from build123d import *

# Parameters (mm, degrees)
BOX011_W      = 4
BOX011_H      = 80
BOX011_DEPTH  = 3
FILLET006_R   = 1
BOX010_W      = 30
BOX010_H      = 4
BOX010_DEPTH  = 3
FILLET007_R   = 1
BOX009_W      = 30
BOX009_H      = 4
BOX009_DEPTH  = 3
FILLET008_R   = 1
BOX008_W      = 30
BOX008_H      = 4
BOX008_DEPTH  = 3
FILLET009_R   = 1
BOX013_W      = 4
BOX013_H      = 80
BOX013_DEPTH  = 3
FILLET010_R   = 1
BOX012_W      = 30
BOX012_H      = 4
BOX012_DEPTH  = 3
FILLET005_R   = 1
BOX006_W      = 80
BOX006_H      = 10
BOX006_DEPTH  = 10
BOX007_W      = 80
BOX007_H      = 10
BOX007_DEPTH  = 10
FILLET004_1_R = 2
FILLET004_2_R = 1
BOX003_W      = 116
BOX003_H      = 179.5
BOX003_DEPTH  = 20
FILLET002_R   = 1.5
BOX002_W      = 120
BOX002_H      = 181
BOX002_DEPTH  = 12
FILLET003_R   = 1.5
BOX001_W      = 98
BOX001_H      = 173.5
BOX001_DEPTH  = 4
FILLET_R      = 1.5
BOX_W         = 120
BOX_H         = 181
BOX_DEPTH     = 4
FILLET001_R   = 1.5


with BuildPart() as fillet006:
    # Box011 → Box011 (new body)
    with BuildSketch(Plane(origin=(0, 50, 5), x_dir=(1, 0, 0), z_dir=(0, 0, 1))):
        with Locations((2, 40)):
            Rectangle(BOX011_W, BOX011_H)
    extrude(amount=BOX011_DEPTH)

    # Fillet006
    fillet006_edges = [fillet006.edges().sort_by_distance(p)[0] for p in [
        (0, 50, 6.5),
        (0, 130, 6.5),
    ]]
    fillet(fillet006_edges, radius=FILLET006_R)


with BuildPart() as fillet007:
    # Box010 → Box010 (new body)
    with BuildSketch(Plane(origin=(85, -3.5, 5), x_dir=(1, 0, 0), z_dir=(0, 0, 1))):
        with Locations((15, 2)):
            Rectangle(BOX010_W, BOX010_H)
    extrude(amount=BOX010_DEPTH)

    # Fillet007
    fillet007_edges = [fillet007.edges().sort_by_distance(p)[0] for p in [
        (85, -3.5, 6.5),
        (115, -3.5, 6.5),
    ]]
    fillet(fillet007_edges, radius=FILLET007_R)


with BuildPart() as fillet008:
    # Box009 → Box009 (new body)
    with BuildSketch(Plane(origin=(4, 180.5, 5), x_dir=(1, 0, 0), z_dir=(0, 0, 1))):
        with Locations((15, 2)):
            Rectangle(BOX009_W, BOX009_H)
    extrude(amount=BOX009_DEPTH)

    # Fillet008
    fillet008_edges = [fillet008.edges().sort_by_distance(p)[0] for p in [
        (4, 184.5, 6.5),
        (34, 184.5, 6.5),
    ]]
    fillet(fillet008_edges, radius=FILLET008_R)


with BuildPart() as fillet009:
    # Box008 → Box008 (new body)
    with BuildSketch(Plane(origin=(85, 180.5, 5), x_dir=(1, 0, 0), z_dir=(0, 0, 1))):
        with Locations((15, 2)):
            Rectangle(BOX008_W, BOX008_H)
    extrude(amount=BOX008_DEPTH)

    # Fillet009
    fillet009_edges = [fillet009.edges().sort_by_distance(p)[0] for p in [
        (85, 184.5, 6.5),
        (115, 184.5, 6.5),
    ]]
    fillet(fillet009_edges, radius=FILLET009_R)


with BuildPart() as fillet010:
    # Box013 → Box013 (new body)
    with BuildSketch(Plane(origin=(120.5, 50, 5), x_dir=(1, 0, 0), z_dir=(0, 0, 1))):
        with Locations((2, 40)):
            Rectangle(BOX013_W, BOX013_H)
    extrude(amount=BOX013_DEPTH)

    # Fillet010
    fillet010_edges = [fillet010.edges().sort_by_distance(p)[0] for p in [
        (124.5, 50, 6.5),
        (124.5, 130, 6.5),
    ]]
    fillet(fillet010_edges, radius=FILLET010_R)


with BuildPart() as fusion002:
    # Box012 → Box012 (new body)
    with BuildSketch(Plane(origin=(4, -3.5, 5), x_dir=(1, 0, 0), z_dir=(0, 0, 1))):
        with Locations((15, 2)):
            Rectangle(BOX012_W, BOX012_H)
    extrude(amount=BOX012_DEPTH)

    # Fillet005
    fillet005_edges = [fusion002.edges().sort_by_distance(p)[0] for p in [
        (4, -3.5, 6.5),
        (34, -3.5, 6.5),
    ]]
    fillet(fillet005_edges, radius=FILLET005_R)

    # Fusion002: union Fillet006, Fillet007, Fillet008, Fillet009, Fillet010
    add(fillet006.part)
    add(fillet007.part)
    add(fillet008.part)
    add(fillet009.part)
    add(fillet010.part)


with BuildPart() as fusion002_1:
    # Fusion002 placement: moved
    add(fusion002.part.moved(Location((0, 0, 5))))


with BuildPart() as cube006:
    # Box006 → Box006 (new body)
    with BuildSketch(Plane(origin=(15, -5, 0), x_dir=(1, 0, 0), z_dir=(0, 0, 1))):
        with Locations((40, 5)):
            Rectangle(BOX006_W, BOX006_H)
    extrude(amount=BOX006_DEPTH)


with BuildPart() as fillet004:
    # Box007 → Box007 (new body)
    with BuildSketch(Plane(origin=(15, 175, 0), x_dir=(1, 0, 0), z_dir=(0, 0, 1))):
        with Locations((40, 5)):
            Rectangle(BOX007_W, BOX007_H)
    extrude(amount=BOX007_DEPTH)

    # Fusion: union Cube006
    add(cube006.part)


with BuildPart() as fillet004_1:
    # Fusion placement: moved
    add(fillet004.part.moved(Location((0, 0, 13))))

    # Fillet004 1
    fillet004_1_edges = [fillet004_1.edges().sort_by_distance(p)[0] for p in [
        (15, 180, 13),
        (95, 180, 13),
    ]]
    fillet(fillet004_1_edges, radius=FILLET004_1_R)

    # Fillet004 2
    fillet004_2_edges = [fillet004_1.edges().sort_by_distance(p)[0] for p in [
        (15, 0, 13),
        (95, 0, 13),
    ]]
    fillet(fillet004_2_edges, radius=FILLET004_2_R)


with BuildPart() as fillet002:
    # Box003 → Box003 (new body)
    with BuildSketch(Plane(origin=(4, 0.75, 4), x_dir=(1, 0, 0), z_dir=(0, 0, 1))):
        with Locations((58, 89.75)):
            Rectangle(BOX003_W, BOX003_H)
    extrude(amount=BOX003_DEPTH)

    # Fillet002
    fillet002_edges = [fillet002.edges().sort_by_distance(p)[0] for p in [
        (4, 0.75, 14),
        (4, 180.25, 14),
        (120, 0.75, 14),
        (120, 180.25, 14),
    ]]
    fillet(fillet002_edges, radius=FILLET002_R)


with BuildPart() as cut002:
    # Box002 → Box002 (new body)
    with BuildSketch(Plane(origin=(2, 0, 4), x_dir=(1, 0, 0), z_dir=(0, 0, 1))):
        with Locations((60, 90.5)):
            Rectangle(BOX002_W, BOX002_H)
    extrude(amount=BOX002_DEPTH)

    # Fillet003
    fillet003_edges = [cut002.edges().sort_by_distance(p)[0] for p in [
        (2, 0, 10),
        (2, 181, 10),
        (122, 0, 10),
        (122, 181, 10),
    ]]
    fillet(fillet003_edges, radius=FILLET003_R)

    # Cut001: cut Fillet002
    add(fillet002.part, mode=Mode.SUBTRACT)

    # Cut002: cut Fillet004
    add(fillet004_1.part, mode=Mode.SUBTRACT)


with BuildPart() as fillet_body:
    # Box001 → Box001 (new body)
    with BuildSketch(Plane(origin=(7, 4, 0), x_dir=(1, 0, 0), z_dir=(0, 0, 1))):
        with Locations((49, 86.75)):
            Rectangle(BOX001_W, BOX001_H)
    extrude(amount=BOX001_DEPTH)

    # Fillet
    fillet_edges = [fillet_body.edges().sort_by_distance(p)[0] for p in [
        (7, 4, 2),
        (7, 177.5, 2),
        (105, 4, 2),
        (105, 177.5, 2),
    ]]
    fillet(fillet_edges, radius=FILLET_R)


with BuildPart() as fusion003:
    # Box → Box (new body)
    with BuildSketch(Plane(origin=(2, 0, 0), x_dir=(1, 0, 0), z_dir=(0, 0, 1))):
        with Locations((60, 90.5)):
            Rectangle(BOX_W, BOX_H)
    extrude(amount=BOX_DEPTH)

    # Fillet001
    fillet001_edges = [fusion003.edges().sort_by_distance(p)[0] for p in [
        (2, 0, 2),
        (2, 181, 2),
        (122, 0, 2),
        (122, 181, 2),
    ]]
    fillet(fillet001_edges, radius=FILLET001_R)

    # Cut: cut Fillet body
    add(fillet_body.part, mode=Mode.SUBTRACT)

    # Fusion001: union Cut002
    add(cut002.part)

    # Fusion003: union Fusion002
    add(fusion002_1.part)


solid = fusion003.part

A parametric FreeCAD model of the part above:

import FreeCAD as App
import Part
import Sketcher

V = App.Vector


def edges_at(feature, points):
    """Names of the edges that pass closest to the given points."""
    edges = feature.Shape.Edges
    near = lambda p: min(range(len(edges)), key=lambda i: edges[i].distToShape(Part.Vertex(*p))[0])
    return sorted({f"Edge{near(p) + 1}" for p in points})


def add_polygon(sketch, points):
    """Adds a closed chain of lines whose ends are joined by coincident constraints."""
    first, n = sketch.GeometryCount, len(points)
    for a, b in zip(points, points[1:] + points[:1]):
        sketch.addGeometry(Part.LineSegment(App.Vector(*a, 0), App.Vector(*b, 0)), False)
    for i in range(n):
        sketch.addConstraint(Sketcher.Constraint("Coincident", first + i, 2, first + (i + 1) % n, 1))

doc = App.newDocument("Part")
body = doc.addObject("PartDesign::Body", "Body")

# Sketch on XY plane
sketch1 = body.newObject("Sketcher::SketchObject", "Sketch")
sketch1.AttachmentSupport = (doc.getObject("XY_Plane"), [""])
sketch1.MapMode = "FlatFace"
sketch1.AttachmentOffset = App.Placement(V(0, 0, 5), App.Rotation())
add_polygon(sketch1, [(0, 130), (0, 50), (4, 50), (4, 130)])  # lines 0-3
sketch1.addConstraint(Sketcher.Constraint("Vertical", 0))
sketch1.addConstraint(Sketcher.Constraint("Horizontal", 1))
sketch1.addConstraint(Sketcher.Constraint("Vertical", 2))
sketch1.addConstraint(Sketcher.Constraint("Horizontal", 3))
sketch1.addConstraint(Sketcher.Constraint("PointOnObject", 0, 2, -2))
sketch1.addConstraint(Sketcher.Constraint("DistanceX", 1, 1, 1, 2, 4.0))
sketch1.addConstraint(Sketcher.Constraint("DistanceY", 0, 2, 0, 1, 80.0))
sketch1.addConstraint(Sketcher.Constraint("DistanceY", -1, 1, 0, 2, 50.0))
pad1 = body.newObject("PartDesign::Pad", "Pad")
pad1.Profile = sketch1
pad1.Length = 3
doc.recompute()

fillet = body.newObject("PartDesign::Fillet", "Fillet")
fillet.Base = (pad1, edges_at(pad1, [(0, 50, 6.5), (0, 130, 6.5)]))
fillet.Radius = 1
body2 = doc.addObject("PartDesign::Body", "Body001")

# Sketch on XY plane
sketch2 = body2.newObject("Sketcher::SketchObject", "Sketch001")
sketch2.AttachmentSupport = (doc.getObject("XY_Plane001"), [""])
sketch2.MapMode = "FlatFace"
sketch2.AttachmentOffset = App.Placement(V(0, 0, 5), App.Rotation())
add_polygon(sketch2, [(85, 0.5), (85, -3.5), (115, -3.5), (115, 0.5)])  # lines 0-3
sketch2.addConstraint(Sketcher.Constraint("Vertical", 0))
sketch2.addConstraint(Sketcher.Constraint("Horizontal", 1))
sketch2.addConstraint(Sketcher.Constraint("Vertical", 2))
sketch2.addConstraint(Sketcher.Constraint("Horizontal", 3))
sketch2.addConstraint(Sketcher.Constraint("DistanceX", 1, 1, 1, 2, 30.0))
sketch2.addConstraint(Sketcher.Constraint("DistanceY", 0, 2, 0, 1, 4.0))
sketch2.addConstraint(Sketcher.Constraint("DistanceX", -1, 1, 0, 2, 85.0))
sketch2.addConstraint(Sketcher.Constraint("DistanceY", 0, 2, -1, 1, 3.5))
pad2 = body2.newObject("PartDesign::Pad", "Pad001")
pad2.Profile = sketch2
pad2.Length = 3
doc.recompute()

fillet2 = body2.newObject("PartDesign::Fillet", "Fillet001")
fillet2.Base = (pad2, edges_at(pad2, [(85, -3.5, 6.5), (115, -3.5, 6.5)]))
fillet2.Radius = 1
body3 = doc.addObject("PartDesign::Body", "Body002")

# Sketch on XY plane
sketch3 = body3.newObject("Sketcher::SketchObject", "Sketch002")
sketch3.AttachmentSupport = (doc.getObject("XY_Plane002"), [""])
sketch3.MapMode = "FlatFace"
sketch3.AttachmentOffset = App.Placement(V(0, 0, 5), App.Rotation())
add_polygon(sketch3, [(4, 184.5), (4, 180.5), (34, 180.5), (34, 184.5)])  # lines 0-3
sketch3.addConstraint(Sketcher.Constraint("Vertical", 0))
sketch3.addConstraint(Sketcher.Constraint("Horizontal", 1))
sketch3.addConstraint(Sketcher.Constraint("Vertical", 2))
sketch3.addConstraint(Sketcher.Constraint("Horizontal", 3))
sketch3.addConstraint(Sketcher.Constraint("DistanceX", 1, 1, 1, 2, 30.0))
sketch3.addConstraint(Sketcher.Constraint("DistanceY", 0, 2, 0, 1, 4.0))
sketch3.addConstraint(Sketcher.Constraint("DistanceX", -1, 1, 0, 2, 4.0))
sketch3.addConstraint(Sketcher.Constraint("DistanceY", -1, 1, 0, 2, 180.5))
pad3 = body3.newObject("PartDesign::Pad", "Pad002")
pad3.Profile = sketch3
pad3.Length = 3
doc.recompute()

fillet3 = body3.newObject("PartDesign::Fillet", "Fillet002")
fillet3.Base = (pad3, edges_at(pad3, [(4, 184.5, 6.5), (34, 184.5, 6.5)]))
fillet3.Radius = 1
body4 = doc.addObject("PartDesign::Body", "Body003")

# Sketch on XY plane
sketch4 = body4.newObject("Sketcher::SketchObject", "Sketch003")
sketch4.AttachmentSupport = (doc.getObject("XY_Plane003"), [""])
sketch4.MapMode = "FlatFace"
sketch4.AttachmentOffset = App.Placement(V(0, 0, 5), App.Rotation())
add_polygon(sketch4, [(85, 184.5), (85, 180.5), (115, 180.5), (115, 184.5)])  # lines 0-3
sketch4.addConstraint(Sketcher.Constraint("Vertical", 0))
sketch4.addConstraint(Sketcher.Constraint("Horizontal", 1))
sketch4.addConstraint(Sketcher.Constraint("Vertical", 2))
sketch4.addConstraint(Sketcher.Constraint("Horizontal", 3))
sketch4.addConstraint(Sketcher.Constraint("DistanceX", 1, 1, 1, 2, 30.0))
sketch4.addConstraint(Sketcher.Constraint("DistanceY", 0, 2, 0, 1, 4.0))
sketch4.addConstraint(Sketcher.Constraint("DistanceX", -1, 1, 0, 2, 85.0))
sketch4.addConstraint(Sketcher.Constraint("DistanceY", -1, 1, 0, 2, 180.5))
pad4 = body4.newObject("PartDesign::Pad", "Pad003")
pad4.Profile = sketch4
pad4.Length = 3
doc.recompute()

fillet4 = body4.newObject("PartDesign::Fillet", "Fillet003")
fillet4.Base = (pad4, edges_at(pad4, [(85, 184.5, 6.5), (115, 184.5, 6.5)]))
fillet4.Radius = 1
body5 = doc.addObject("PartDesign::Body", "Body004")

# Sketch on XY plane
sketch5 = body5.newObject("Sketcher::SketchObject", "Sketch004")
sketch5.AttachmentSupport = (doc.getObject("XY_Plane004"), [""])
sketch5.MapMode = "FlatFace"
sketch5.AttachmentOffset = App.Placement(V(0, 0, 5), App.Rotation())
add_polygon(sketch5, [(120.5, 130), (120.5, 50), (124.5, 50), (124.5, 130)])  # lines 0-3
sketch5.addConstraint(Sketcher.Constraint("Vertical", 0))
sketch5.addConstraint(Sketcher.Constraint("Horizontal", 1))
sketch5.addConstraint(Sketcher.Constraint("Vertical", 2))
sketch5.addConstraint(Sketcher.Constraint("Horizontal", 3))
sketch5.addConstraint(Sketcher.Constraint("DistanceX", 1, 1, 1, 2, 4.0))
sketch5.addConstraint(Sketcher.Constraint("DistanceY", 0, 2, 0, 1, 80.0))
sketch5.addConstraint(Sketcher.Constraint("DistanceY", -1, 1, 0, 2, 50.0))
sketch5.addConstraint(Sketcher.Constraint("DistanceX", -1, 1, 0, 2, 120.5))
pad5 = body5.newObject("PartDesign::Pad", "Pad004")
pad5.Profile = sketch5
pad5.Length = 3
doc.recompute()

fillet5 = body5.newObject("PartDesign::Fillet", "Fillet004")
fillet5.Base = (pad5, edges_at(pad5, [(124.5, 50, 6.5), (124.5, 130, 6.5)]))
fillet5.Radius = 1
body6 = doc.addObject("PartDesign::Body", "Body005")
body6.AllowCompound = True

# Sketch on XY plane
sketch6 = body6.newObject("Sketcher::SketchObject", "Sketch005")
sketch6.AttachmentSupport = (doc.getObject("XY_Plane005"), [""])
sketch6.MapMode = "FlatFace"
sketch6.AttachmentOffset = App.Placement(V(0, 0, 5), App.Rotation())
add_polygon(sketch6, [(4, 0.5), (4, -3.5), (34, -3.5), (34, 0.5)])  # lines 0-3
sketch6.addConstraint(Sketcher.Constraint("Vertical", 0))
sketch6.addConstraint(Sketcher.Constraint("Horizontal", 1))
sketch6.addConstraint(Sketcher.Constraint("Vertical", 2))
sketch6.addConstraint(Sketcher.Constraint("Horizontal", 3))
sketch6.addConstraint(Sketcher.Constraint("DistanceX", 1, 1, 1, 2, 30.0))
sketch6.addConstraint(Sketcher.Constraint("DistanceY", 0, 2, 0, 1, 4.0))
sketch6.addConstraint(Sketcher.Constraint("DistanceX", -1, 1, 0, 2, 4.0))
sketch6.addConstraint(Sketcher.Constraint("DistanceY", 0, 2, -1, 1, 3.5))
pad6 = body6.newObject("PartDesign::Pad", "Pad005")
pad6.Profile = sketch6
pad6.Length = 3
doc.recompute()

fillet6 = body6.newObject("PartDesign::Fillet", "Fillet005")
fillet6.Base = (pad6, edges_at(pad6, [(4, -3.5, 6.5), (34, -3.5, 6.5)]))
fillet6.Radius = 1
doc.recompute()

boolean = body6.newObject("PartDesign::Boolean", "Boolean")
boolean.Type = "Fuse"
boolean.addObjects([body])
doc.recompute()

boolean2 = body6.newObject("PartDesign::Boolean", "Boolean001")
boolean2.Type = "Fuse"
boolean2.addObjects([body2])
doc.recompute()

boolean3 = body6.newObject("PartDesign::Boolean", "Boolean002")
boolean3.Type = "Fuse"
boolean3.addObjects([body3])
doc.recompute()

boolean4 = body6.newObject("PartDesign::Boolean", "Boolean003")
boolean4.Type = "Fuse"
boolean4.addObjects([body4])
doc.recompute()

boolean5 = body6.newObject("PartDesign::Boolean", "Boolean004")
boolean5.Type = "Fuse"
boolean5.addObjects([body5])
body7 = doc.addObject("PartDesign::Body", "Body006")
body7.AllowCompound = True
doc.recompute()

body6.Placement = App.Placement(V(0, 0, 5), App.Rotation(V(0, 0, 1), 0))
boolean6 = body7.newObject("PartDesign::Boolean", "Boolean005")
boolean6.Type = "Fuse"
boolean6.addObjects([body6])
body8 = doc.addObject("PartDesign::Body", "Body007")

# Sketch on XY plane
sketch7 = body8.newObject("Sketcher::SketchObject", "Sketch006")
sketch7.AttachmentSupport = (doc.getObject("XY_Plane007"), [""])
sketch7.MapMode = "FlatFace"
add_polygon(sketch7, [(15, 5), (15, -5), (95, -5), (95, 5)])  # lines 0-3
sketch7.addConstraint(Sketcher.Constraint("Vertical", 0))
sketch7.addConstraint(Sketcher.Constraint("Horizontal", 1))
sketch7.addConstraint(Sketcher.Constraint("Vertical", 2))
sketch7.addConstraint(Sketcher.Constraint("Horizontal", 3))
sketch7.addConstraint(Sketcher.Constraint("DistanceX", 1, 1, 1, 2, 80.0))
sketch7.addConstraint(Sketcher.Constraint("DistanceY", 0, 2, 0, 1, 10.0))
sketch7.addConstraint(Sketcher.Constraint("DistanceX", -1, 1, 0, 2, 15.0))
sketch7.addConstraint(Sketcher.Constraint("DistanceY", 0, 2, -1, 1, 5.0))
pad7 = body8.newObject("PartDesign::Pad", "Pad006")
pad7.Profile = sketch7
pad7.Length = 10
body9 = doc.addObject("PartDesign::Body", "Body008")
body9.AllowCompound = True

# Sketch on XY plane
sketch8 = body9.newObject("Sketcher::SketchObject", "Sketch007")
sketch8.AttachmentSupport = (doc.getObject("XY_Plane008"), [""])
sketch8.MapMode = "FlatFace"
add_polygon(sketch8, [(15, 185), (15, 175), (95, 175), (95, 185)])  # lines 0-3
sketch8.addConstraint(Sketcher.Constraint("Vertical", 0))
sketch8.addConstraint(Sketcher.Constraint("Horizontal", 1))
sketch8.addConstraint(Sketcher.Constraint("Vertical", 2))
sketch8.addConstraint(Sketcher.Constraint("Horizontal", 3))
sketch8.addConstraint(Sketcher.Constraint("DistanceX", 1, 1, 1, 2, 80.0))
sketch8.addConstraint(Sketcher.Constraint("DistanceY", 0, 2, 0, 1, 10.0))
sketch8.addConstraint(Sketcher.Constraint("DistanceX", -1, 1, 0, 2, 15.0))
sketch8.addConstraint(Sketcher.Constraint("DistanceY", -1, 1, 0, 2, 175.0))
pad8 = body9.newObject("PartDesign::Pad", "Pad007")
pad8.Profile = sketch8
pad8.Length = 10
doc.recompute()

boolean7 = body9.newObject("PartDesign::Boolean", "Boolean006")
boolean7.Type = "Fuse"
boolean7.addObjects([body8])
body10 = doc.addObject("PartDesign::Body", "Body009")
body10.AllowCompound = True
doc.recompute()

body9.Placement = App.Placement(V(0, 0, 13), App.Rotation(V(0, 0, 1), 0))
boolean8 = body10.newObject("PartDesign::Boolean", "Boolean007")
boolean8.Type = "Fuse"
boolean8.addObjects([body9])
doc.recompute()

fillet7 = body10.newObject("PartDesign::Fillet", "Fillet006")
fillet7.Base = (boolean8, edges_at(boolean8, [(15, 180, 13), (95, 180, 13)]))
fillet7.Radius = 2
doc.recompute()

fillet8 = body10.newObject("PartDesign::Fillet", "Fillet007")
fillet8.Base = (fillet7, edges_at(fillet7, [(15, 0, 13), (95, 0, 13)]))
fillet8.Radius = 1
body11 = doc.addObject("PartDesign::Body", "Body010")

# Sketch on XY plane
sketch9 = body11.newObject("Sketcher::SketchObject", "Sketch008")
sketch9.AttachmentSupport = (doc.getObject("XY_Plane010"), [""])
sketch9.MapMode = "FlatFace"
sketch9.AttachmentOffset = App.Placement(V(0, 0, 4), App.Rotation())
add_polygon(sketch9, [(4, 180), (4, 1), (120, 1), (120, 180)])  # lines 0-3
sketch9.addConstraint(Sketcher.Constraint("Vertical", 0))
sketch9.addConstraint(Sketcher.Constraint("Horizontal", 1))
sketch9.addConstraint(Sketcher.Constraint("Vertical", 2))
sketch9.addConstraint(Sketcher.Constraint("Horizontal", 3))
sketch9.addConstraint(Sketcher.Constraint("DistanceX", 1, 1, 1, 2, 116.0))
sketch9.addConstraint(Sketcher.Constraint("DistanceY", 0, 2, 0, 1, 179.5))
sketch9.addConstraint(Sketcher.Constraint("DistanceX", -1, 1, 0, 2, 4.0))
sketch9.addConstraint(Sketcher.Constraint("DistanceY", -1, 1, 0, 2, 0.75))
pad9 = body11.newObject("PartDesign::Pad", "Pad008")
pad9.Profile = sketch9
pad9.Length = 20
doc.recompute()

fillet9 = body11.newObject("PartDesign::Fillet", "Fillet008")
fillet9.Base = (pad9, edges_at(pad9, [
    (4, 0.75, 14),
    (4, 180.25, 14),
    (120, 0.75, 14),
    (120, 180.25, 14),
]))
fillet9.Radius = 1.5
body12 = doc.addObject("PartDesign::Body", "Body011")

# Sketch on XY plane
sketch10 = body12.newObject("Sketcher::SketchObject", "Sketch009")
sketch10.AttachmentSupport = (doc.getObject("XY_Plane011"), [""])
sketch10.MapMode = "FlatFace"
sketch10.AttachmentOffset = App.Placement(V(0, 0, 4), App.Rotation())
add_polygon(sketch10, [(2, 181), (2, 0), (122, 0), (122, 181)])  # lines 0-3
sketch10.addConstraint(Sketcher.Constraint("Vertical", 0))
sketch10.addConstraint(Sketcher.Constraint("Horizontal", 1))
sketch10.addConstraint(Sketcher.Constraint("Vertical", 2))
sketch10.addConstraint(Sketcher.Constraint("Horizontal", 3))
sketch10.addConstraint(Sketcher.Constraint("PointOnObject", 0, 2, -1))
sketch10.addConstraint(Sketcher.Constraint("DistanceX", 1, 1, 1, 2, 120.0))
sketch10.addConstraint(Sketcher.Constraint("DistanceY", 0, 2, 0, 1, 181.0))
sketch10.addConstraint(Sketcher.Constraint("DistanceX", -1, 1, 0, 2, 2.0))
pad10 = body12.newObject("PartDesign::Pad", "Pad009")
pad10.Profile = sketch10
pad10.Length = 12
doc.recompute()

fillet10 = body12.newObject("PartDesign::Fillet", "Fillet009")
fillet10.Base = (pad10, edges_at(pad10, [
    (2, 0, 10),
    (2, 181, 10),
    (122, 0, 10),
    (122, 181, 10),
]))
fillet10.Radius = 1.5
doc.recompute()

boolean9 = body12.newObject("PartDesign::Boolean", "Boolean008")
boolean9.Type = "Cut"
boolean9.addObjects([body11])
doc.recompute()

boolean10 = body12.newObject("PartDesign::Boolean", "Boolean009")
boolean10.Type = "Cut"
boolean10.addObjects([body10])
body13 = doc.addObject("PartDesign::Body", "Body012")

# Sketch on XY plane
sketch11 = body13.newObject("Sketcher::SketchObject", "Sketch010")
sketch11.AttachmentSupport = (doc.getObject("XY_Plane012"), [""])
sketch11.MapMode = "FlatFace"
add_polygon(sketch11, [(7, 178), (7, 4), (105, 4), (105, 178)])  # lines 0-3
sketch11.addConstraint(Sketcher.Constraint("Vertical", 0))
sketch11.addConstraint(Sketcher.Constraint("Horizontal", 1))
sketch11.addConstraint(Sketcher.Constraint("Vertical", 2))
sketch11.addConstraint(Sketcher.Constraint("Horizontal", 3))
sketch11.addConstraint(Sketcher.Constraint("DistanceX", 1, 1, 1, 2, 98.0))
sketch11.addConstraint(Sketcher.Constraint("DistanceY", 0, 2, 0, 1, 173.5))
sketch11.addConstraint(Sketcher.Constraint("DistanceX", -1, 1, 0, 2, 7.0))
sketch11.addConstraint(Sketcher.Constraint("DistanceY", -1, 1, 0, 2, 4.0))
pad11 = body13.newObject("PartDesign::Pad", "Pad010")
pad11.Profile = sketch11
pad11.Length = 4
doc.recompute()

fillet11 = body13.newObject("PartDesign::Fillet", "Fillet010")
fillet11.Base = (pad11, edges_at(pad11, [
    (7, 4, 2),
    (7, 177.5, 2),
    (105, 4, 2),
    (105, 177.5, 2),
]))
fillet11.Radius = 1.5
body14 = doc.addObject("PartDesign::Body", "Body013")

# Sketch on XY plane
sketch12 = body14.newObject("Sketcher::SketchObject", "Sketch011")
sketch12.AttachmentSupport = (doc.getObject("XY_Plane013"), [""])
sketch12.MapMode = "FlatFace"
add_polygon(sketch12, [(2, 181), (2, 0), (122, 0), (122, 181)])  # lines 0-3
sketch12.addConstraint(Sketcher.Constraint("Vertical", 0))
sketch12.addConstraint(Sketcher.Constraint("Horizontal", 1))
sketch12.addConstraint(Sketcher.Constraint("Vertical", 2))
sketch12.addConstraint(Sketcher.Constraint("Horizontal", 3))
sketch12.addConstraint(Sketcher.Constraint("PointOnObject", 0, 2, -1))
sketch12.addConstraint(Sketcher.Constraint("DistanceX", 1, 1, 1, 2, 120.0))
sketch12.addConstraint(Sketcher.Constraint("DistanceY", 0, 2, 0, 1, 181.0))
sketch12.addConstraint(Sketcher.Constraint("DistanceX", -1, 1, 0, 2, 2.0))
pad12 = body14.newObject("PartDesign::Pad", "Pad011")
pad12.Profile = sketch12
pad12.Length = 4
doc.recompute()

fillet12 = body14.newObject("PartDesign::Fillet", "Fillet011")
fillet12.Base = (pad12, edges_at(pad12, [
    (2, 0, 2),
    (2, 181, 2),
    (122, 0, 2),
    (122, 181, 2),
]))
fillet12.Radius = 1.5
doc.recompute()

boolean11 = body14.newObject("PartDesign::Boolean", "Boolean010")
boolean11.Type = "Cut"
boolean11.addObjects([body13])
doc.recompute()

boolean12 = body14.newObject("PartDesign::Boolean", "Boolean011")
boolean12.Type = "Fuse"
boolean12.addObjects([body12])
doc.recompute()

boolean13 = body14.newObject("PartDesign::Boolean", "Boolean012")
boolean13.Type = "Fuse"
boolean13.addObjects([body7])

doc.recompute()
